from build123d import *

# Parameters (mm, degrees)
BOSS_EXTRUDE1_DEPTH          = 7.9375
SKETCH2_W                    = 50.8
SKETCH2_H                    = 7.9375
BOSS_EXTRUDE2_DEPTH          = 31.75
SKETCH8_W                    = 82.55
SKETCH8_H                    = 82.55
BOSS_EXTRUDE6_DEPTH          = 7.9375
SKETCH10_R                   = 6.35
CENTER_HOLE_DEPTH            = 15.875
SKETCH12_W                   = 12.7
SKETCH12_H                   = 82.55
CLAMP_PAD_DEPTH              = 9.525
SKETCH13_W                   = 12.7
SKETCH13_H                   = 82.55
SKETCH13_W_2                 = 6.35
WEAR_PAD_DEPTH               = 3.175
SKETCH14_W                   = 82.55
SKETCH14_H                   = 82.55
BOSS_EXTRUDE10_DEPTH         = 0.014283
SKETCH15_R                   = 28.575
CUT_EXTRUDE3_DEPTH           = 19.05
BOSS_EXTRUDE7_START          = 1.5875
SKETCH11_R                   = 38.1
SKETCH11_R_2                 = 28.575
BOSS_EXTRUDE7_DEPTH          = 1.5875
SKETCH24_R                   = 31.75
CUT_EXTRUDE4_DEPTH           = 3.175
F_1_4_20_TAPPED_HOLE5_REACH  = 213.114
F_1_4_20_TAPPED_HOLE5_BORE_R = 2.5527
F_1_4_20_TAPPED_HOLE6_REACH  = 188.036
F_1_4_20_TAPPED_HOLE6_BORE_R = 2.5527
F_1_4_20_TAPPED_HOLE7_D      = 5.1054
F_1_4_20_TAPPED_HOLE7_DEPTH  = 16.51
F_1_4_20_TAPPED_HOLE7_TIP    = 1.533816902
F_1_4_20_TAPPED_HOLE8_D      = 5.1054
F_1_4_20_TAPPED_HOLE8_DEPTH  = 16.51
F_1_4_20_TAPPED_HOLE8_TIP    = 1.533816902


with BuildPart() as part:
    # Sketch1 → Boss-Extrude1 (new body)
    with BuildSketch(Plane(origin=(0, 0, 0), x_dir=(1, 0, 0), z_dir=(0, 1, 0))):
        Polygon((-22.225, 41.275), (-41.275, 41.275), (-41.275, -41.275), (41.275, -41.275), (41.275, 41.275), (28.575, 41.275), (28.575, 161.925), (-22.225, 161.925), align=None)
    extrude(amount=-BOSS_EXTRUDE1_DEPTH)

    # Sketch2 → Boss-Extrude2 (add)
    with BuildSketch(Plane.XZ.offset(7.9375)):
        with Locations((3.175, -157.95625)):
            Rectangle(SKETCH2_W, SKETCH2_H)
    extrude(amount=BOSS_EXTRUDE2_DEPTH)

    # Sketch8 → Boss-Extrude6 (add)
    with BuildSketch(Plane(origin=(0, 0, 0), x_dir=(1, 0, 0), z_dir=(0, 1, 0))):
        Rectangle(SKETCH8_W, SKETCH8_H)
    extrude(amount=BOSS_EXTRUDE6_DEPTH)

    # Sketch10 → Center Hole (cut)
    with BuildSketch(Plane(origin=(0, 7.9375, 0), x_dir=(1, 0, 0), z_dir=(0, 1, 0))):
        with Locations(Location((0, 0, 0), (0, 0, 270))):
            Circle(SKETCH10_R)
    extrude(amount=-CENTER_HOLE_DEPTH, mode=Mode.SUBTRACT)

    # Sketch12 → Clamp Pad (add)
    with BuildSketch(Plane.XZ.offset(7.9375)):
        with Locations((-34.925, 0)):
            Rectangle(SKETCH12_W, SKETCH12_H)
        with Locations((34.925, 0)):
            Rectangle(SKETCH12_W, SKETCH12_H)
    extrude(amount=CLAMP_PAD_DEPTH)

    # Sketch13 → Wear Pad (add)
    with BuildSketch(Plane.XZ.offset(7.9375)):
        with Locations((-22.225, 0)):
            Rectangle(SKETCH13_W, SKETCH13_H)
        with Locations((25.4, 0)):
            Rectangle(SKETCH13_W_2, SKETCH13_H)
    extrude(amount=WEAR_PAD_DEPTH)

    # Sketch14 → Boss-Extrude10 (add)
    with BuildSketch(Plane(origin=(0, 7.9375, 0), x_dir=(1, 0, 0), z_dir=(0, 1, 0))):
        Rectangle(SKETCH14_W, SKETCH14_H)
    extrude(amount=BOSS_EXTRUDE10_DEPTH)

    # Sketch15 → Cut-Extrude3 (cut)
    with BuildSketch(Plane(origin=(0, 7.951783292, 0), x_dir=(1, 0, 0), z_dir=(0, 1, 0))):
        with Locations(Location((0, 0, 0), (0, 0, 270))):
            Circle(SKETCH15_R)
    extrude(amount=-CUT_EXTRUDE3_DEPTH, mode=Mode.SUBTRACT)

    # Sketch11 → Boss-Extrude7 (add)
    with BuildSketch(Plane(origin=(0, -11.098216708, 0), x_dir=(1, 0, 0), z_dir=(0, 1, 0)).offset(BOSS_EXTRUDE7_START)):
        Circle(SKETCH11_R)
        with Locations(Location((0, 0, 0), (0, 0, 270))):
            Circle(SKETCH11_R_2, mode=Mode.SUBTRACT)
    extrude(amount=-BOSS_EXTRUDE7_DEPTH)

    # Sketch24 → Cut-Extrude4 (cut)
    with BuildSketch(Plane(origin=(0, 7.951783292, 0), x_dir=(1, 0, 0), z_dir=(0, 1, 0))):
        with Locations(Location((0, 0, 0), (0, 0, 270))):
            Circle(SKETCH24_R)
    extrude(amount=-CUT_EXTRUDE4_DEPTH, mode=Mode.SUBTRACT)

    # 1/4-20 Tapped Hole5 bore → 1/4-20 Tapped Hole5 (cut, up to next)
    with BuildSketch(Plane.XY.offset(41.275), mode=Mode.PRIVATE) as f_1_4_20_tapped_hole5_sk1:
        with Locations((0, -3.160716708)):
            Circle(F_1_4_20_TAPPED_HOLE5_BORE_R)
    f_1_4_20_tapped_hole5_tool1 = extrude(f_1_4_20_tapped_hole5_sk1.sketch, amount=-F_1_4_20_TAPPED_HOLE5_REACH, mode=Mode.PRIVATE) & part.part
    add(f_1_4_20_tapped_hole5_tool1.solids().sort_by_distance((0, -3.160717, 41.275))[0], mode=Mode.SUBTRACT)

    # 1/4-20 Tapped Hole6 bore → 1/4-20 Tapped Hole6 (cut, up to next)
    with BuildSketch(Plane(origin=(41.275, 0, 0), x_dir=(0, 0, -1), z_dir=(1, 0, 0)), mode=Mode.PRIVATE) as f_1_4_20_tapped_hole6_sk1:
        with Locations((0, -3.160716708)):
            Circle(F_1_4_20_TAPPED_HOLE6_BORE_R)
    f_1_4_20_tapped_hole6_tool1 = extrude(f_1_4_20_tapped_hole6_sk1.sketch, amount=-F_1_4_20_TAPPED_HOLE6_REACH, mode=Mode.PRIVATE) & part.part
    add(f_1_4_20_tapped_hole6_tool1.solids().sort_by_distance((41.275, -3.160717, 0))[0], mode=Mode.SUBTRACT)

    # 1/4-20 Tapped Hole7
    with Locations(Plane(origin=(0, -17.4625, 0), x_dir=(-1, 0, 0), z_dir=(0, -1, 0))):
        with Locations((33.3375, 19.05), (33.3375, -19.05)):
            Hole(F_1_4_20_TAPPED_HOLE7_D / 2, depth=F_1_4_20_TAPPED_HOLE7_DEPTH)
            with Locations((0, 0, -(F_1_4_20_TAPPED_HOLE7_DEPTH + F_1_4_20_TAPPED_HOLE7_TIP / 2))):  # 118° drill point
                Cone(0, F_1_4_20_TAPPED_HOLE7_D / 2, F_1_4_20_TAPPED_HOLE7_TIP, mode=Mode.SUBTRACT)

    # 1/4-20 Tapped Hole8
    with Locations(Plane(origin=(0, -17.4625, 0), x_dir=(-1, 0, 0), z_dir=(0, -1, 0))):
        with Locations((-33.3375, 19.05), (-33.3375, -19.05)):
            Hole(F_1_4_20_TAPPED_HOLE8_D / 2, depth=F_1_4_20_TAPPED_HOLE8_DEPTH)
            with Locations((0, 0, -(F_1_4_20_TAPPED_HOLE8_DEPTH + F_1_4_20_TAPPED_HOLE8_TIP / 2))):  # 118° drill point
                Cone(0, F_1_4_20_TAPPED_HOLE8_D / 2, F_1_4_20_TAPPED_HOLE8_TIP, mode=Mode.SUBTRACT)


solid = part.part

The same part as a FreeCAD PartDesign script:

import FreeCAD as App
import Part
import Sketcher
from FreeCAD import Vector
Q = App.Units.Quantity


def add_polygon(sketch, points):
    """Adds a closed chain of lines whose ends are joined by coincident constraints."""
    first, n = sketch.GeometryCount, len(points)
    for a, b in zip(points, points[1:] + points[:1]):
        sketch.addGeometry(Part.LineSegment(App.Vector(*a, 0), App.Vector(*b, 0)), False)
    for i in range(n):
        sketch.addConstraint(Sketcher.Constraint("Coincident", first + i, 2, first + (i + 1) % n, 1))

doc = App.newDocument("Part")
body = doc.addObject("PartDesign::Body", "Body")

sketch1 = body.newObject("Sketcher::SketchObject", "Sketch")
sketch1.AttachmentSupport = (doc.getObject("XZ_Plane"), [""])
sketch1.MapMode = "FlatFace"
add_polygon(sketch1, [(-22, -41), (-41, -41), (-41, 41), (41, 41), (41, -41), (29, -41), (29, -162), (-22, -162)])
sketch1.addConstraint([
    Sketcher.Constraint("Horizontal", 0),
    Sketcher.Constraint("Vertical", 1),
    Sketcher.Constraint("Horizontal", 2),
    Sketcher.Constraint("Vertical", 3),
    Sketcher.Constraint("Horizontal", 4),
    Sketcher.Constraint("Vertical", 5),
    Sketcher.Constraint("Horizontal", 6),
    Sketcher.Constraint("Vertical", 7),
    Sketcher.Constraint("Symmetric", 0, 2, 2, 2, -1, 1),
    Sketcher.Constraint("Horizontal", 0, 2, 3, 2),
    Sketcher.Constraint("Equal", 2, 1),
    Sketcher.Constraint("DistanceX", 6, 2, 6, 1, Q("2 in")),
    Sketcher.Constraint("DistanceX", 4, 2, 4, 1, Q("0.5 in")),
    Sketcher.Constraint("DistanceY", 5, 2, 2, 2, Q("8 in")),
    Sketcher.Constraint("DistanceX", 0, 2, 0, 1, Q("0.75 in")),
])
pad1 = body.newObject("PartDesign::Pad", "Pad")
pad1.Profile = sketch1
pad1.Length = Q("0.3125 in")

sketch2 = body.newObject("Sketcher::SketchObject", "Sketch001")
sketch2.AttachmentSupport = (doc.getObject("XZ_Plane"), [""])
sketch2.MapMode = "FlatFace"
sketch2.AttachmentOffset = App.Placement(Vector(0, 0, 0.3125 * 25.4), App.Rotation())
add_polygon(sketch2, [(-22, -154), (-22, -162), (29, -162), (29, -154)])
sketch2.addConstraint([
    Sketcher.Constraint("Vertical", 0),
    Sketcher.Constraint("Horizontal", 1),
    Sketcher.Constraint("Vertical", 2),
    Sketcher.Constraint("Horizontal", 3),
    Sketcher.Constraint("DistanceX", 1, 1, 1, 2, Q("2 in")),
    Sketcher.Constraint("DistanceY", 0, 2, 0, 1, Q("0.3125 in")),
    Sketcher.Constraint("DistanceX", 0, 2, -1, 1, Q("0.875 in")),
    Sketcher.Constraint("DistanceY", 0, 2, -1, 1, Q("6.375 in")),
])
pad2 = body.newObject("PartDesign::Pad", "Pad001")
pad2.Profile = sketch2
pad2.Length = Q("1.25 in")

sketch3 = body.newObject("Sketcher::SketchObject", "Sketch002")
sketch3.AttachmentSupport = (doc.getObject("XZ_Plane"), [""])
sketch3.MapMode = "FlatFace"
add_polygon(sketch3, [(-41, -41), (-41, 41), (41, 41), (41, -41)])
sketch3.addConstraint([
    Sketcher.Constraint("Vertical", 0),
    Sketcher.Constraint("Horizontal", 1),
    Sketcher.Constraint("Vertical", 2),
    Sketcher.Constraint("Horizontal", 3),
    Sketcher.Constraint("Symmetric", 0, 2, 2, 2, -1, 1),
    Sketcher.Constraint("Equal", 3, 0),
    Sketcher.Constraint("DistanceX", 1, 1, 1, 2, Q("3.25 in")),
])
pad3 = body.newObject("PartDesign::Pad", "Pad002")
pad3.Profile = sketch3
pad3.Length = Q("0.3125 in")
pad3.Reversed = True

sketch4 = body.newObject("Sketcher::SketchObject", "Sketch003")
sketch4.AttachmentSupport = (doc.getObject("XZ_Plane"), [""])
sketch4.MapMode = "FlatFace"
sketch4.AttachmentOffset = App.Placement(Vector(0, 0, -0.3125 * 25.4), App.Rotation())
sketch4.addGeometry(Part.Circle(Vector(0, 0, 0), Vector(0, 0, 1), 6), False)
sketch4.addConstraint([
    Sketcher.Constraint("Coincident", 0, 3, -1, 1),
    Sketcher.Constraint("Diameter", 0, Q("0.5 in")),
])
pocket1 = body.newObject("PartDesign::Pocket", "Pocket")
pocket1.Profile = sketch4
pocket1.Length = Q("0.625 in")
pocket1.Reversed = True

sketch5 = body.newObject("Sketcher::SketchObject", "Sketch004")
sketch5.AttachmentSupport = (doc.getObject("XZ_Plane"), [""])
sketch5.MapMode = "FlatFace"
sketch5.AttachmentOffset = App.Placement(Vector(0, 0, 0.3125 * 25.4), App.Rotation())
add_polygon(sketch5, [(-41, 41), (-41, -41), (-29, -41), (-29, 41)])
add_polygon(sketch5, [(29, 41), (29, -41), (41, -41), (41, 41)])
sketch5.addConstraint([
    Sketcher.Constraint("Vertical", 0),
    Sketcher.Constraint("Horizontal", 1),
    Sketcher.Constraint("Vertical", 2),
    Sketcher.Constraint("Horizontal", 3),
    Sketcher.Constraint("Vertical", 4),
    Sketcher.Constraint("Horizontal", 5),
    Sketcher.Constraint("Vertical", 6),
    Sketcher.Constraint("Horizontal", 7),
    Sketcher.Constraint("Symmetric", 2, 2, 4, 2, -1, 1),
    Sketcher.Constraint("Symmetric", 0, 2, 6, 2, -1, 1),
    Sketcher.Constraint("Horizontal", 1, 2, 4, 2),
    Sketcher.Constraint("DistanceX", 1, 1, 1, 2, Q("0.5 in")),
    Sketcher.Constraint("DistanceY", 0, 2, 0, 1, Q("3.25 in")),
    Sketcher.Constraint("DistanceX", 1, 2, 4, 2, Q("2.25 in")),
])
pad4 = body.newObject("PartDesign::Pad", "Pad003")
pad4.Profile = sketch5
pad4.Length = Q("0.375 in")

sketch6 = body.newObject("Sketcher::SketchObject", "Sketch005")
sketch6.AttachmentSupport = (doc.getObject("XZ_Plane"), [""])
sketch6.MapMode = "FlatFace"
sketch6.AttachmentOffset = App.Placement(Vector(0, 0, 0.3125 * 25.4), App.Rotation())
add_polygon(sketch6, [(-29, 41), (-29, -41), (-16, -41), (-16, 41)])
add_polygon(sketch6, [(22, 41), (22, -41), (29, -41), (29, 41)])
sketch6.addConstraint([
    Sketcher.Constraint("Vertical", 0),
    Sketcher.Constraint("Horizontal", 1),
    Sketcher.Constraint("Vertical", 2),
    Sketcher.Constraint("Horizontal", 3),
    Sketcher.Constraint("Vertical", 4),
    Sketcher.Constraint("Horizontal", 5),
    Sketcher.Constraint("Vertical", 6),
    Sketcher.Constraint("Horizontal", 7),
    Sketcher.Constraint("Symmetric", 3, 2, 5, 2, -1, 1),
    Sketcher.Constraint("Horizontal", 1, 2, 4, 2),
    Sketcher.Constraint("Horizontal", 3, 2, 6, 2),
    Sketcher.Constraint("DistanceX", 1, 1, 1, 2, Q("0.5 in")),
    Sketcher.Constraint("DistanceX", 0, 2, 4, 2, Q("2 in")),
    Sketcher.Constraint("DistanceX", 5, 1, 5, 2, Q("0.25 in")),
    Sketcher.Constraint("DistanceY", 0, 2, 0, 1, Q("3.25 in")),
])
pad5 = body.newObject("PartDesign::Pad", "Pad004")
pad5.Profile = sketch6
pad5.Length = Q("0.125 in")

sketch7 = body.newObject("Sketcher::SketchObject", "Sketch006")
sketch7.AttachmentSupport = (doc.getObject("XZ_Plane"), [""])
sketch7.MapMode = "FlatFace"
sketch7.AttachmentOffset = App.Placement(Vector(0, 0, -0.3125 * 25.4), App.Rotation())
add_polygon(sketch7, [(-41, -41), (-41, 41), (41, 41), (41, -41)])
sketch7.addConstraint([
    Sketcher.Constraint("Vertical", 0),
    Sketcher.Constraint("Horizontal", 1),
    Sketcher.Constraint("Vertical", 2),
    Sketcher.Constraint("Horizontal", 3),
    Sketcher.Constraint("Symmetric", 0, 2, 2, 2, -1, 1),
    Sketcher.Constraint("Equal", 3, 0),
    Sketcher.Constraint("DistanceX", 1, 1, 1, 2, Q("3.25 in")),
])
pad6 = body.newObject("PartDesign::Pad", "Pad005")
pad6.Profile = sketch7
pad6.Length = 0.014283
pad6.Reversed = True

sketch8 = body.newObject("Sketcher::SketchObject", "Sketch007")
sketch8.AttachmentSupport = (doc.getObject("XZ_Plane"), [""])
sketch8.MapMode = "FlatFace"
sketch8.AttachmentOffset = App.Placement(Vector(0, 0, -7.951783), App.Rotation())
sketch8.addGeometry(Part.Circle(Vector(0, 0, 0), Vector(0, 0, 1), 29), False)
sketch8.addConstraint([
    Sketcher.Constraint("Coincident", 0, 3, -1, 1),
    Sketcher.Constraint("Diameter", 0, Q("2.25 in")),
])
pocket2 = body.newObject("PartDesign::Pocket", "Pocket001")
pocket2.Profile = sketch8
pocket2.Length = Q("0.75 in")
pocket2.Reversed = True

sketch9 = body.newObject("Sketcher::SketchObject", "Sketch008")
sketch9.AttachmentSupport = (doc.getObject("XZ_Plane"), [""])
sketch9.MapMode = "FlatFace"
sketch9.AttachmentOffset = App.Placement(Vector(0, 0, 9.510717), App.Rotation())
sketch9.addGeometry([
    Part.Circle(Vector(0, 0, 0), Vector(0, 0, 1), 38),
    Part.Circle(Vector(0, 0, 0), Vector(0, 0, 1), 29),
], False)
sketch9.addConstraint([
    Sketcher.Constraint("Coincident", 0, 3, -1, 1),
    Sketcher.Constraint("Coincident", 1, 3, -1, 1),
    Sketcher.Constraint("Diameter", 0, Q("3 in")),
    Sketcher.Constraint("Diameter", 1, Q("2.25 in")),
])
pad7 = body.newObject("PartDesign::Pad", "Pad006")
pad7.Profile = sketch9
pad7.Length = Q("0.0625 in")

sketch10 = body.newObject("Sketcher::SketchObject", "Sketch009")
sketch10.AttachmentSupport = (doc.getObject("XZ_Plane"), [""])
sketch10.MapMode = "FlatFace"
sketch10.AttachmentOffset = App.Placement(Vector(0, 0, -7.951783), App.Rotation())
sketch10.addGeometry(Part.Circle(Vector(0, 0, 0), Vector(0, 0, 1), 32), False)
sketch10.addConstraint([
    Sketcher.Constraint("Coincident", 0, 3, -1, 1),
    Sketcher.Constraint("Diameter", 0, Q("2.5 in")),
])
pocket3 = body.newObject("PartDesign::Pocket", "Pocket002")
pocket3.Profile = sketch10
pocket3.Length = Q("0.125 in")
pocket3.Reversed = True

sketch11 = body.newObject("Sketcher::SketchObject", "Sketch010")
sketch11.AttachmentSupport = (doc.getObject("XY_Plane"), [""])
sketch11.MapMode = "FlatFace"
sketch11.AttachmentOffset = App.Placement(Vector(0, 0, 1.625 * 25.4), App.Rotation())
sketch11.addGeometry(Part.Circle(Vector(0, -3.2, 0), Vector(0, 0, 1), 2.6), False)
sketch11.addConstraint([
    Sketcher.Constraint("PointOnObject", 0, 3, -2),
    Sketcher.Constraint("Diameter", 0, Q("0.201 in")),
    Sketcher.Constraint("DistanceY", 0, 3, -1, 1, 3.160717),
])
pocket4 = body.newObject("PartDesign::Pocket", "Pocket003")
pocket4.Profile = sketch11
pocket4.Type = "UpToFirst"

sketch12 = body.newObject("Sketcher::SketchObject", "Sketch011")
sketch12.AttachmentSupport = (doc.getObject("YZ_Plane"), [""])
sketch12.MapMode = "FlatFace"
sketch12.AttachmentOffset = App.Placement(Vector(0, 0, 1.625 * 25.4), App.Rotation())
sketch12.addGeometry(Part.Circle(Vector(-3.2, 0, 0), Vector(0, 0, 1), 2.6), False)
sketch12.addConstraint([
    Sketcher.Constraint("PointOnObject", 0, 3, -1),
    Sketcher.Constraint("Diameter", 0, Q("0.201 in")),
    Sketcher.Constraint("DistanceX", 0, 3, -1, 1, 3.160717),
])
pocket5 = body.newObject("PartDesign::Pocket", "Pocket004")
pocket5.Profile = sketch12
pocket5.Length = 12.814249

sketch13 = body.newObject("Sketcher::SketchObject", "Sketch012")
sketch13.AttachmentSupport = (doc.getObject("XZ_Plane"), [""])
sketch13.MapMode = "FlatFace"
sketch13.AttachmentOffset = App.Placement(Vector(0, 0, 0.6875 * 25.4), App.Rotation())
sketch13.addGeometry([
    Part.Circle(Vector(-33.3, -19.1, 0), Vector(0, 0, 1), 2.6),
    Part.Circle(Vector(-33.3, 19.1, 0), Vector(0, 0, 1), 2.6),
], False)
sketch13.addConstraint([
    Sketcher.Constraint("Equal", 0, 1),
    Sketcher.Constraint("Symmetric", 0, 3, 1, 3, -1),
    Sketcher.Constraint("Diameter", 0, Q("0.201 in")),
    Sketcher.Constraint("DistanceY", 0, 3, 1, 3, Q("1.5 in")),
    Sketcher.Constraint("DistanceX", 0, 3, -1, 1, Q("1.3125 in")),
])
doc.recompute()
hole = body.newObject("PartDesign::Hole", "Hole")
hole.Profile = sketch13
hole.ThreadType = "None"
hole.Diameter = Q("0.201 in")
hole.DepthType = "Dimension"
hole.Depth = Q("0.65 in")
hole.DrillPoint = "Angled"
hole.DrillPointAngle = 118

sketch14 = body.newObject("Sketcher::SketchObject", "Sketch013")
sketch14.AttachmentSupport = (doc.getObject("XZ_Plane"), [""])
sketch14.MapMode = "FlatFace"
sketch14.AttachmentOffset = App.Placement(Vector(0, 0, 0.6875 * 25.4), App.Rotation())
sketch14.addGeometry([
    Part.Circle(Vector(33.3, -19.1, 0), Vector(0, 0, 1), 2.6),
    Part.Circle(Vector(33.3, 19.1, 0), Vector(0, 0, 1), 2.6),
], False)
sketch14.addConstraint([
    Sketcher.Constraint("Equal", 0, 1),
    Sketcher.Constraint("Symmetric", 0, 3, 1, 3, -1),
    Sketcher.Constraint("Diameter", 0, Q("0.201 in")),
    Sketcher.Constraint("DistanceY", 0, 3, 1, 3, Q("1.5 in")),
    Sketcher.Constraint("DistanceX", -1, 1, 0, 3, Q("1.3125 in")),
])
doc.recompute()
hole2 = body.newObject("PartDesign::Hole", "Hole001")
hole2.Profile = sketch14
hole2.ThreadType = "None"
hole2.Diameter = Q("0.201 in")
hole2.DepthType = "Dimension"
hole2.Depth = Q("0.65 in")
hole2.DrillPoint = "Angled"
hole2.DrillPointAngle = 118

doc.recompute()
